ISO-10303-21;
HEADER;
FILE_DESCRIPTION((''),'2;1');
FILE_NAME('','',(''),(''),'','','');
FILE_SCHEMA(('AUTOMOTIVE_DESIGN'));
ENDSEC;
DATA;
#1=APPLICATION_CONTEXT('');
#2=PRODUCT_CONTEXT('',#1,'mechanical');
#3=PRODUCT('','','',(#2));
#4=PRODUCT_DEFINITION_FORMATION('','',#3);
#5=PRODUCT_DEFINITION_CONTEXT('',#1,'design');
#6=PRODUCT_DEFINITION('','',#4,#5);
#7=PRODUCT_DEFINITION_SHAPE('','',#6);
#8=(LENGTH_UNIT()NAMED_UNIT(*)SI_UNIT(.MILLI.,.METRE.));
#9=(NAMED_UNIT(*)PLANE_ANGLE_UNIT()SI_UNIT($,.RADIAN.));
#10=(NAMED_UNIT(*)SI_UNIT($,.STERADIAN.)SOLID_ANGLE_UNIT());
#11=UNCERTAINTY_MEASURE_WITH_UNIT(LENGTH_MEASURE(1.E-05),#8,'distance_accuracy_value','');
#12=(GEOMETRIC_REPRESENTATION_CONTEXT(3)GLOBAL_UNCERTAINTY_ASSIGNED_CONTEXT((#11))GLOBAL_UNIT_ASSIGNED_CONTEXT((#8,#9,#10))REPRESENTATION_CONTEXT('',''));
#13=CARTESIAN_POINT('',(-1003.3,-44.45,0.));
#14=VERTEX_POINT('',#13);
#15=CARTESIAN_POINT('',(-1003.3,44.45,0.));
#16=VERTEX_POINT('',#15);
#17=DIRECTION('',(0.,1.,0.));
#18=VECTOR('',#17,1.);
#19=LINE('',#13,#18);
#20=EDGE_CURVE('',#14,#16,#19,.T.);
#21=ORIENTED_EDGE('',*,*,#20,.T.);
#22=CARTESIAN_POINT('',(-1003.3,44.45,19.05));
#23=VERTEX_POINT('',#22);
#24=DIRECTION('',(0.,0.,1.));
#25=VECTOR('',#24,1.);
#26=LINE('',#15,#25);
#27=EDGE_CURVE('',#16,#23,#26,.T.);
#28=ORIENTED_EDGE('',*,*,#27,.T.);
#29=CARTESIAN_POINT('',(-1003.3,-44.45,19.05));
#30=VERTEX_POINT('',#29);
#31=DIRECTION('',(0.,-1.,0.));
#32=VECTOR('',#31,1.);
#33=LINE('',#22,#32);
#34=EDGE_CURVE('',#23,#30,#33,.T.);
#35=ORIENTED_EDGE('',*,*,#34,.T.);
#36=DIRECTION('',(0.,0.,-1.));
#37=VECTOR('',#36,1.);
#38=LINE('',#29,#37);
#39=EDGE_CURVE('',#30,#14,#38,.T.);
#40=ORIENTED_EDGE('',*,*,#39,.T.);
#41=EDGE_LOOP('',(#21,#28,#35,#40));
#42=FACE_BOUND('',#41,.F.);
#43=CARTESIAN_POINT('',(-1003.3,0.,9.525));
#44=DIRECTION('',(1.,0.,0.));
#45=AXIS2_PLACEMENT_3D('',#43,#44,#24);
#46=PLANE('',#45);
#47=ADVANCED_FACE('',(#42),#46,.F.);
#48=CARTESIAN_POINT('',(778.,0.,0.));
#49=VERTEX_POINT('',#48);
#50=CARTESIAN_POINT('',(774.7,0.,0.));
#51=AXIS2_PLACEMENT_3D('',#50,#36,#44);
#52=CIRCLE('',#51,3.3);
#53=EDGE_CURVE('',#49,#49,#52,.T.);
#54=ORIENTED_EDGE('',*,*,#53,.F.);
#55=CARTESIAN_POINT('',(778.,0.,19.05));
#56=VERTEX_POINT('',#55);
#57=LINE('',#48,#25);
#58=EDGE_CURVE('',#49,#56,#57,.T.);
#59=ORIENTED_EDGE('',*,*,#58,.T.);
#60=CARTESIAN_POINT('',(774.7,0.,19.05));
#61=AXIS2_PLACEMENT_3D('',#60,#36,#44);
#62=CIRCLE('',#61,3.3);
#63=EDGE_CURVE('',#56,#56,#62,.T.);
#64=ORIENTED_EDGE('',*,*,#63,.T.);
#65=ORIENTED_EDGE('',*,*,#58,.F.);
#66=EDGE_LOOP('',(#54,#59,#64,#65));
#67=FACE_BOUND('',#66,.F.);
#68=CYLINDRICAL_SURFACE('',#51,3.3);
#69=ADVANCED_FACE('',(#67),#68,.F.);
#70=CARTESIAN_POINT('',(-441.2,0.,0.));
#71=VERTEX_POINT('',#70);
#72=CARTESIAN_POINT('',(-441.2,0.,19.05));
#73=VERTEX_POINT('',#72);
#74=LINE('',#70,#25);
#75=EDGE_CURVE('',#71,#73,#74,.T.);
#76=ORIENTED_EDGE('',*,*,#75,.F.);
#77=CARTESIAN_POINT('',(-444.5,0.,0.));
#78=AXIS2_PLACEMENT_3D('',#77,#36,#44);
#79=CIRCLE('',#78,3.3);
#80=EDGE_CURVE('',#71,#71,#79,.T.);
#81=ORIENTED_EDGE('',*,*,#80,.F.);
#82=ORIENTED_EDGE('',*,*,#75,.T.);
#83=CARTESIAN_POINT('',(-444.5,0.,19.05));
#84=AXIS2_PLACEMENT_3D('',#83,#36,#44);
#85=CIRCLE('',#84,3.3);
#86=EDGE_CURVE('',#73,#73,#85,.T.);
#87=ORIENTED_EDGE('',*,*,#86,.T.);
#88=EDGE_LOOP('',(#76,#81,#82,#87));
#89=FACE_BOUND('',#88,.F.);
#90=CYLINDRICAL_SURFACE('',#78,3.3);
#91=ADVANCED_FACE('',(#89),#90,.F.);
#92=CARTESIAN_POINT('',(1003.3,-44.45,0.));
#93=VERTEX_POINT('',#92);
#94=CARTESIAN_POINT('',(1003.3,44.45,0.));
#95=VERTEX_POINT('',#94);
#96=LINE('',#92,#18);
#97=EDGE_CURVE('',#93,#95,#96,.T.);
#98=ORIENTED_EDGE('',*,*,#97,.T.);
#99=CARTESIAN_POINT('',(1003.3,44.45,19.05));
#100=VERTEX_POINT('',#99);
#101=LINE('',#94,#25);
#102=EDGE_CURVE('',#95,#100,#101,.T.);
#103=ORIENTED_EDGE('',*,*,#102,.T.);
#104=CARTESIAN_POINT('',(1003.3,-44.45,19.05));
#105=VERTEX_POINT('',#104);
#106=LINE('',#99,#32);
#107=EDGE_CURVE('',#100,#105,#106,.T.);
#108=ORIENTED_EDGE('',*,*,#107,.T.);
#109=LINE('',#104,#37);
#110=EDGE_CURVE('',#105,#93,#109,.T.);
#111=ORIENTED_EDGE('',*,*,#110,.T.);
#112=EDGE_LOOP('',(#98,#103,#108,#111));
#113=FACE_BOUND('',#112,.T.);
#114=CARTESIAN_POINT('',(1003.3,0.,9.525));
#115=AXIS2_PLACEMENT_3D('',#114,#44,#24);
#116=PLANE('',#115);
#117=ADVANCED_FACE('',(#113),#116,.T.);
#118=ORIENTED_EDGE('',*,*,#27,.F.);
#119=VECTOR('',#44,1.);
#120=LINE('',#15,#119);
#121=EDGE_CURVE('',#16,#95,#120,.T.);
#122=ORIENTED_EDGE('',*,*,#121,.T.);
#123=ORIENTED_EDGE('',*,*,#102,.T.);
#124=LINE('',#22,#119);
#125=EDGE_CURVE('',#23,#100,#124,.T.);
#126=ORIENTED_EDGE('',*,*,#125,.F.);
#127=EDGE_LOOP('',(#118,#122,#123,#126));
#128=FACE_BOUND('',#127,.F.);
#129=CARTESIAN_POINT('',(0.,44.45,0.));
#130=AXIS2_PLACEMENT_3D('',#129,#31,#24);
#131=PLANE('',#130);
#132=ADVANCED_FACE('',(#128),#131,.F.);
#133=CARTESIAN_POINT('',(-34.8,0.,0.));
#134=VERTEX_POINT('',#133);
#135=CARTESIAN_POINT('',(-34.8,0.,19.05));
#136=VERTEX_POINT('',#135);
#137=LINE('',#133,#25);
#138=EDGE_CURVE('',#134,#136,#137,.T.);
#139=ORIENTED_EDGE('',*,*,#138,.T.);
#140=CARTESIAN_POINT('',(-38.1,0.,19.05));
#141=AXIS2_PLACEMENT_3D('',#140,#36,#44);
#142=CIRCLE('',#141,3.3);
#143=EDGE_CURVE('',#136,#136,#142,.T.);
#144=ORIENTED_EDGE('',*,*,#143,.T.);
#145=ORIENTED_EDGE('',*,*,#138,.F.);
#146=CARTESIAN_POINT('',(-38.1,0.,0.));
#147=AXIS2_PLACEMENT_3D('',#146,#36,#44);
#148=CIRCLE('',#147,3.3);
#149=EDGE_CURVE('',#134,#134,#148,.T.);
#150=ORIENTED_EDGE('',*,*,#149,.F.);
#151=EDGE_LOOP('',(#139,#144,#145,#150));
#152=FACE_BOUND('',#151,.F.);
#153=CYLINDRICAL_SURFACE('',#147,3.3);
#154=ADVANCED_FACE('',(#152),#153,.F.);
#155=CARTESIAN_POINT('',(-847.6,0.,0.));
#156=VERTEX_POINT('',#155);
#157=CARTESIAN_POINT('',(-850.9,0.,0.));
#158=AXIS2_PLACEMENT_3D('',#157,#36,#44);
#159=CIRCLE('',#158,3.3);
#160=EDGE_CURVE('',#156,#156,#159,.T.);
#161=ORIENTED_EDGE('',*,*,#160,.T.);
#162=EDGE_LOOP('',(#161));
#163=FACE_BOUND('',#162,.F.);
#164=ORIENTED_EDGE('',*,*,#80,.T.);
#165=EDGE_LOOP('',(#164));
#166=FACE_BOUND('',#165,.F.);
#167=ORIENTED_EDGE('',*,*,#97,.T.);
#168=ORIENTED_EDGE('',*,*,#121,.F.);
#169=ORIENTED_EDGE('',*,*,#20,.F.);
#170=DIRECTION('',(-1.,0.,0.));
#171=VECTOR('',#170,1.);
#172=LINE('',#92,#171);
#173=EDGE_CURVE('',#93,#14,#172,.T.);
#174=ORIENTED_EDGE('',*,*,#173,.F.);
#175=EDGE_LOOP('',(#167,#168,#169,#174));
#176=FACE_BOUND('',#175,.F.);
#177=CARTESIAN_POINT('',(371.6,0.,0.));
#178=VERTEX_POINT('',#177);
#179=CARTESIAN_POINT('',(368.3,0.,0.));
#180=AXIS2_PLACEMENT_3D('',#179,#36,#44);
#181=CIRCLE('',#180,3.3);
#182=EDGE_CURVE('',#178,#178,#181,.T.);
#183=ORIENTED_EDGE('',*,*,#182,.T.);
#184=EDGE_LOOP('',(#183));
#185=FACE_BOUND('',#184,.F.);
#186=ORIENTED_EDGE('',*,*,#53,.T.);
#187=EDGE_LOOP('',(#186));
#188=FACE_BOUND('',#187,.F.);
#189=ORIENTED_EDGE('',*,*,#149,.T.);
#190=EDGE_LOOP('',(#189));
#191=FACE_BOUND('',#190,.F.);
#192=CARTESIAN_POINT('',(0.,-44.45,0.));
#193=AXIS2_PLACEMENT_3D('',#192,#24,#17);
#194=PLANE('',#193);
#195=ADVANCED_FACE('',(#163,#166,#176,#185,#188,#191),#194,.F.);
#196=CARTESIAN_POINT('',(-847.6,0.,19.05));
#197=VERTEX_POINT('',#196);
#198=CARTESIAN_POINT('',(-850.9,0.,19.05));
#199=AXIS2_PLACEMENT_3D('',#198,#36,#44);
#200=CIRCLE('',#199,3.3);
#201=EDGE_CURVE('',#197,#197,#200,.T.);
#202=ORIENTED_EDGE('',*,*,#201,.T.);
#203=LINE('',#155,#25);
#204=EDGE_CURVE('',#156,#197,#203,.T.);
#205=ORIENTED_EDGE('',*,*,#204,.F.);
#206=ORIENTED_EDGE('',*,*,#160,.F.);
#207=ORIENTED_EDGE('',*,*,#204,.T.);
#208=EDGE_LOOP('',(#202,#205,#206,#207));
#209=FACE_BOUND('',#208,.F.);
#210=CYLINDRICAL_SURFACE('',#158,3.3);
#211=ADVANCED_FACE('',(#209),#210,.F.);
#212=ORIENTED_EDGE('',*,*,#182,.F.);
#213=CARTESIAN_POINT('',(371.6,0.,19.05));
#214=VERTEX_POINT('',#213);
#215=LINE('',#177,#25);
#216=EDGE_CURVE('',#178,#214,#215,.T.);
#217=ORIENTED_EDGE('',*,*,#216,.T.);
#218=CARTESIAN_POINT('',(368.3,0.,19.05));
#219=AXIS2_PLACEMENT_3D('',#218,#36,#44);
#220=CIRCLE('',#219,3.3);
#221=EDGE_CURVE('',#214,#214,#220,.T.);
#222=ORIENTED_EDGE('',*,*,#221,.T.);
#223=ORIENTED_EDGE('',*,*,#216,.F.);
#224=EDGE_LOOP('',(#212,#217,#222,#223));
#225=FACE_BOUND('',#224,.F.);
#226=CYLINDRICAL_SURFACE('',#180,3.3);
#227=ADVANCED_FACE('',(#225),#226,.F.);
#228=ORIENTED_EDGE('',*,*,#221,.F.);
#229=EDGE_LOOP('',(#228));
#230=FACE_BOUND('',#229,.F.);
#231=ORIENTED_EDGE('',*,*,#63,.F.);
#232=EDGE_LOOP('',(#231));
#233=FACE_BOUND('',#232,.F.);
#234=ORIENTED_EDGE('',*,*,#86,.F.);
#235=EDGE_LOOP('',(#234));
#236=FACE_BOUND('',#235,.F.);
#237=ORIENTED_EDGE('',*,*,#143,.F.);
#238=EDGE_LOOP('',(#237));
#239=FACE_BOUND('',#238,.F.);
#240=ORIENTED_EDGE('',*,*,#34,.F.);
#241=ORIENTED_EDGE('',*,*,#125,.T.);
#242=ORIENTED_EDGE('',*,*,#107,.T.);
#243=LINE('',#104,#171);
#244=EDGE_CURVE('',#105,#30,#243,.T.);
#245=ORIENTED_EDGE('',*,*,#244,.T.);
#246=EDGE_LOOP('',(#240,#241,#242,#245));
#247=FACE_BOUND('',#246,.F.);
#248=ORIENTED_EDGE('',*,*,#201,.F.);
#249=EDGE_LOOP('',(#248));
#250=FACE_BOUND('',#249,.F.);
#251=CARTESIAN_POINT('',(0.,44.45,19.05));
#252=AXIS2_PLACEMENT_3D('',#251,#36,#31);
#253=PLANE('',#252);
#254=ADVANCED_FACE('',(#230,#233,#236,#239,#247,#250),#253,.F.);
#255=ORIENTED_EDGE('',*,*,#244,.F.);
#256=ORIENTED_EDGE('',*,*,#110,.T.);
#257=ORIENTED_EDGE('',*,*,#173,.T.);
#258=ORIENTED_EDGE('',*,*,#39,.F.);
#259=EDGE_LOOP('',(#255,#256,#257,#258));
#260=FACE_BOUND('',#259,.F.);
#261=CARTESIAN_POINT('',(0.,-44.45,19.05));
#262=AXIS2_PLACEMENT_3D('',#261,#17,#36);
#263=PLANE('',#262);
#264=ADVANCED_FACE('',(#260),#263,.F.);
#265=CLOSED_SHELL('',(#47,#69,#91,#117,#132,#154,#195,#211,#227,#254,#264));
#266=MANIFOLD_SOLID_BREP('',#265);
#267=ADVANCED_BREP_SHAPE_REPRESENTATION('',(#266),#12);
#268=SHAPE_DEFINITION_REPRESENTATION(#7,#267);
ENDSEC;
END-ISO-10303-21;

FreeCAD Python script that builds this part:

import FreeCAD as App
import Part
import Sketcher

V = App.Vector
Q = App.Units.Quantity


def add_polygon(sketch, points):
    """Adds a closed chain of lines whose ends are joined by coincident constraints."""
    first, n = sketch.GeometryCount, len(points)
    for a, b in zip(points, points[1:] + points[:1]):
        sketch.addGeometry(Part.LineSegment(App.Vector(*a, 0), App.Vector(*b, 0)), False)
    for i in range(n):
        sketch.addConstraint(Sketcher.Constraint("Coincident", first + i, 2, first + (i + 1) % n, 1))

doc = App.newDocument("Part")
params = doc.addObject("Spreadsheet::Sheet", "Params")
for row, (alias, value) in enumerate([
    ("sketch1_width", "3.5 in"),
    ("sketch1_height", "0.75 in"),
    ("pad1_length", "79 in"),
    ("linearpattern_pitch", "16 in"),
], start=1):
    params.set(f"A{row}", alias)
    params.set(f"B{row}", "=" + value)
    params.setAlias(f"B{row}", alias)

body = doc.addObject("PartDesign::Body", "Body")

# Sketch on YZ plane
sketch1 = doc.addObject("Sketcher::SketchObject", "Sketch")
body.addObject(sketch1)
sketch1.AttachmentSupport = (doc.YZ_Plane, [""])
sketch1.MapMode = "FlatFace"
add_polygon(sketch1, [(-44, 19), (-44, 0), (44, 0), (44, 19)])  # lines 0-3
sketch1.addConstraint([
    Sketcher.Constraint("Vertical", 0),
    Sketcher.Constraint("Horizontal", 1),
    Sketcher.Constraint("Vertical", 2),
    Sketcher.Constraint("Horizontal", 3),
    Sketcher.Constraint("Symmetric", 0, 2, 1, 2, -1, 1),
    Sketcher.Constraint("DistanceX", 1, 1, 1, 2, Q("3.5 in")),
    Sketcher.Constraint("DistanceY", 0, 2, 0, 1, Q("0.75 in")),
])
sketch1.setExpression("Constraints[9]", "Params.sketch1_width")
sketch1.setExpression("Constraints[10]", "Params.sketch1_height")
pad1 = doc.addObject("PartDesign::Pad", "Pad")
body.addObject(pad1)
pad1.Profile = sketch1
pad1.setExpression("Length", "Params.pad1_length")
pad1.Midplane = True

# Sketch on XY plane
sketch2 = doc.addObject("Sketcher::SketchObject", "Sketch001")
body.addObject(sketch2)
sketch2.AttachmentSupport = (doc.XY_Plane, [""])
sketch2.MapMode = "FlatFace"
sketch2.addGeometry(Part.Circle(V(-850.9, 0, 0), V(0, 0, 1), 3.3), False)
sketch2.addConstraint([
    Sketcher.Constraint("PointOnObject", 0, 3, -1),
    Sketcher.Constraint("DistanceX", 0, 3, -1, 1, Q("33.5 in")),
    Sketcher.Constraint("Diameter", 0, Q("6.6 mm")),
])
pocket1 = doc.addObject("PartDesign::Pocket", "Pocket")
body.addObject(pocket1)
pocket1.Profile = sketch2
pocket1.Type = "ThroughAll"
pocket1.Reversed = True
doc.recompute()

linearpattern = doc.addObject("PartDesign::LinearPattern", "LinearPattern")
body.addObject(linearpattern)
linearpattern.Originals = [pocket1]
linearpattern.Direction = (doc.X_Axis, [""])
linearpattern.Mode = "offset"
linearpattern.setExpression("Offset", "Params.linearpattern_pitch")
linearpattern.Occurrences = 5
body.Tip = linearpattern

doc.recompute()
